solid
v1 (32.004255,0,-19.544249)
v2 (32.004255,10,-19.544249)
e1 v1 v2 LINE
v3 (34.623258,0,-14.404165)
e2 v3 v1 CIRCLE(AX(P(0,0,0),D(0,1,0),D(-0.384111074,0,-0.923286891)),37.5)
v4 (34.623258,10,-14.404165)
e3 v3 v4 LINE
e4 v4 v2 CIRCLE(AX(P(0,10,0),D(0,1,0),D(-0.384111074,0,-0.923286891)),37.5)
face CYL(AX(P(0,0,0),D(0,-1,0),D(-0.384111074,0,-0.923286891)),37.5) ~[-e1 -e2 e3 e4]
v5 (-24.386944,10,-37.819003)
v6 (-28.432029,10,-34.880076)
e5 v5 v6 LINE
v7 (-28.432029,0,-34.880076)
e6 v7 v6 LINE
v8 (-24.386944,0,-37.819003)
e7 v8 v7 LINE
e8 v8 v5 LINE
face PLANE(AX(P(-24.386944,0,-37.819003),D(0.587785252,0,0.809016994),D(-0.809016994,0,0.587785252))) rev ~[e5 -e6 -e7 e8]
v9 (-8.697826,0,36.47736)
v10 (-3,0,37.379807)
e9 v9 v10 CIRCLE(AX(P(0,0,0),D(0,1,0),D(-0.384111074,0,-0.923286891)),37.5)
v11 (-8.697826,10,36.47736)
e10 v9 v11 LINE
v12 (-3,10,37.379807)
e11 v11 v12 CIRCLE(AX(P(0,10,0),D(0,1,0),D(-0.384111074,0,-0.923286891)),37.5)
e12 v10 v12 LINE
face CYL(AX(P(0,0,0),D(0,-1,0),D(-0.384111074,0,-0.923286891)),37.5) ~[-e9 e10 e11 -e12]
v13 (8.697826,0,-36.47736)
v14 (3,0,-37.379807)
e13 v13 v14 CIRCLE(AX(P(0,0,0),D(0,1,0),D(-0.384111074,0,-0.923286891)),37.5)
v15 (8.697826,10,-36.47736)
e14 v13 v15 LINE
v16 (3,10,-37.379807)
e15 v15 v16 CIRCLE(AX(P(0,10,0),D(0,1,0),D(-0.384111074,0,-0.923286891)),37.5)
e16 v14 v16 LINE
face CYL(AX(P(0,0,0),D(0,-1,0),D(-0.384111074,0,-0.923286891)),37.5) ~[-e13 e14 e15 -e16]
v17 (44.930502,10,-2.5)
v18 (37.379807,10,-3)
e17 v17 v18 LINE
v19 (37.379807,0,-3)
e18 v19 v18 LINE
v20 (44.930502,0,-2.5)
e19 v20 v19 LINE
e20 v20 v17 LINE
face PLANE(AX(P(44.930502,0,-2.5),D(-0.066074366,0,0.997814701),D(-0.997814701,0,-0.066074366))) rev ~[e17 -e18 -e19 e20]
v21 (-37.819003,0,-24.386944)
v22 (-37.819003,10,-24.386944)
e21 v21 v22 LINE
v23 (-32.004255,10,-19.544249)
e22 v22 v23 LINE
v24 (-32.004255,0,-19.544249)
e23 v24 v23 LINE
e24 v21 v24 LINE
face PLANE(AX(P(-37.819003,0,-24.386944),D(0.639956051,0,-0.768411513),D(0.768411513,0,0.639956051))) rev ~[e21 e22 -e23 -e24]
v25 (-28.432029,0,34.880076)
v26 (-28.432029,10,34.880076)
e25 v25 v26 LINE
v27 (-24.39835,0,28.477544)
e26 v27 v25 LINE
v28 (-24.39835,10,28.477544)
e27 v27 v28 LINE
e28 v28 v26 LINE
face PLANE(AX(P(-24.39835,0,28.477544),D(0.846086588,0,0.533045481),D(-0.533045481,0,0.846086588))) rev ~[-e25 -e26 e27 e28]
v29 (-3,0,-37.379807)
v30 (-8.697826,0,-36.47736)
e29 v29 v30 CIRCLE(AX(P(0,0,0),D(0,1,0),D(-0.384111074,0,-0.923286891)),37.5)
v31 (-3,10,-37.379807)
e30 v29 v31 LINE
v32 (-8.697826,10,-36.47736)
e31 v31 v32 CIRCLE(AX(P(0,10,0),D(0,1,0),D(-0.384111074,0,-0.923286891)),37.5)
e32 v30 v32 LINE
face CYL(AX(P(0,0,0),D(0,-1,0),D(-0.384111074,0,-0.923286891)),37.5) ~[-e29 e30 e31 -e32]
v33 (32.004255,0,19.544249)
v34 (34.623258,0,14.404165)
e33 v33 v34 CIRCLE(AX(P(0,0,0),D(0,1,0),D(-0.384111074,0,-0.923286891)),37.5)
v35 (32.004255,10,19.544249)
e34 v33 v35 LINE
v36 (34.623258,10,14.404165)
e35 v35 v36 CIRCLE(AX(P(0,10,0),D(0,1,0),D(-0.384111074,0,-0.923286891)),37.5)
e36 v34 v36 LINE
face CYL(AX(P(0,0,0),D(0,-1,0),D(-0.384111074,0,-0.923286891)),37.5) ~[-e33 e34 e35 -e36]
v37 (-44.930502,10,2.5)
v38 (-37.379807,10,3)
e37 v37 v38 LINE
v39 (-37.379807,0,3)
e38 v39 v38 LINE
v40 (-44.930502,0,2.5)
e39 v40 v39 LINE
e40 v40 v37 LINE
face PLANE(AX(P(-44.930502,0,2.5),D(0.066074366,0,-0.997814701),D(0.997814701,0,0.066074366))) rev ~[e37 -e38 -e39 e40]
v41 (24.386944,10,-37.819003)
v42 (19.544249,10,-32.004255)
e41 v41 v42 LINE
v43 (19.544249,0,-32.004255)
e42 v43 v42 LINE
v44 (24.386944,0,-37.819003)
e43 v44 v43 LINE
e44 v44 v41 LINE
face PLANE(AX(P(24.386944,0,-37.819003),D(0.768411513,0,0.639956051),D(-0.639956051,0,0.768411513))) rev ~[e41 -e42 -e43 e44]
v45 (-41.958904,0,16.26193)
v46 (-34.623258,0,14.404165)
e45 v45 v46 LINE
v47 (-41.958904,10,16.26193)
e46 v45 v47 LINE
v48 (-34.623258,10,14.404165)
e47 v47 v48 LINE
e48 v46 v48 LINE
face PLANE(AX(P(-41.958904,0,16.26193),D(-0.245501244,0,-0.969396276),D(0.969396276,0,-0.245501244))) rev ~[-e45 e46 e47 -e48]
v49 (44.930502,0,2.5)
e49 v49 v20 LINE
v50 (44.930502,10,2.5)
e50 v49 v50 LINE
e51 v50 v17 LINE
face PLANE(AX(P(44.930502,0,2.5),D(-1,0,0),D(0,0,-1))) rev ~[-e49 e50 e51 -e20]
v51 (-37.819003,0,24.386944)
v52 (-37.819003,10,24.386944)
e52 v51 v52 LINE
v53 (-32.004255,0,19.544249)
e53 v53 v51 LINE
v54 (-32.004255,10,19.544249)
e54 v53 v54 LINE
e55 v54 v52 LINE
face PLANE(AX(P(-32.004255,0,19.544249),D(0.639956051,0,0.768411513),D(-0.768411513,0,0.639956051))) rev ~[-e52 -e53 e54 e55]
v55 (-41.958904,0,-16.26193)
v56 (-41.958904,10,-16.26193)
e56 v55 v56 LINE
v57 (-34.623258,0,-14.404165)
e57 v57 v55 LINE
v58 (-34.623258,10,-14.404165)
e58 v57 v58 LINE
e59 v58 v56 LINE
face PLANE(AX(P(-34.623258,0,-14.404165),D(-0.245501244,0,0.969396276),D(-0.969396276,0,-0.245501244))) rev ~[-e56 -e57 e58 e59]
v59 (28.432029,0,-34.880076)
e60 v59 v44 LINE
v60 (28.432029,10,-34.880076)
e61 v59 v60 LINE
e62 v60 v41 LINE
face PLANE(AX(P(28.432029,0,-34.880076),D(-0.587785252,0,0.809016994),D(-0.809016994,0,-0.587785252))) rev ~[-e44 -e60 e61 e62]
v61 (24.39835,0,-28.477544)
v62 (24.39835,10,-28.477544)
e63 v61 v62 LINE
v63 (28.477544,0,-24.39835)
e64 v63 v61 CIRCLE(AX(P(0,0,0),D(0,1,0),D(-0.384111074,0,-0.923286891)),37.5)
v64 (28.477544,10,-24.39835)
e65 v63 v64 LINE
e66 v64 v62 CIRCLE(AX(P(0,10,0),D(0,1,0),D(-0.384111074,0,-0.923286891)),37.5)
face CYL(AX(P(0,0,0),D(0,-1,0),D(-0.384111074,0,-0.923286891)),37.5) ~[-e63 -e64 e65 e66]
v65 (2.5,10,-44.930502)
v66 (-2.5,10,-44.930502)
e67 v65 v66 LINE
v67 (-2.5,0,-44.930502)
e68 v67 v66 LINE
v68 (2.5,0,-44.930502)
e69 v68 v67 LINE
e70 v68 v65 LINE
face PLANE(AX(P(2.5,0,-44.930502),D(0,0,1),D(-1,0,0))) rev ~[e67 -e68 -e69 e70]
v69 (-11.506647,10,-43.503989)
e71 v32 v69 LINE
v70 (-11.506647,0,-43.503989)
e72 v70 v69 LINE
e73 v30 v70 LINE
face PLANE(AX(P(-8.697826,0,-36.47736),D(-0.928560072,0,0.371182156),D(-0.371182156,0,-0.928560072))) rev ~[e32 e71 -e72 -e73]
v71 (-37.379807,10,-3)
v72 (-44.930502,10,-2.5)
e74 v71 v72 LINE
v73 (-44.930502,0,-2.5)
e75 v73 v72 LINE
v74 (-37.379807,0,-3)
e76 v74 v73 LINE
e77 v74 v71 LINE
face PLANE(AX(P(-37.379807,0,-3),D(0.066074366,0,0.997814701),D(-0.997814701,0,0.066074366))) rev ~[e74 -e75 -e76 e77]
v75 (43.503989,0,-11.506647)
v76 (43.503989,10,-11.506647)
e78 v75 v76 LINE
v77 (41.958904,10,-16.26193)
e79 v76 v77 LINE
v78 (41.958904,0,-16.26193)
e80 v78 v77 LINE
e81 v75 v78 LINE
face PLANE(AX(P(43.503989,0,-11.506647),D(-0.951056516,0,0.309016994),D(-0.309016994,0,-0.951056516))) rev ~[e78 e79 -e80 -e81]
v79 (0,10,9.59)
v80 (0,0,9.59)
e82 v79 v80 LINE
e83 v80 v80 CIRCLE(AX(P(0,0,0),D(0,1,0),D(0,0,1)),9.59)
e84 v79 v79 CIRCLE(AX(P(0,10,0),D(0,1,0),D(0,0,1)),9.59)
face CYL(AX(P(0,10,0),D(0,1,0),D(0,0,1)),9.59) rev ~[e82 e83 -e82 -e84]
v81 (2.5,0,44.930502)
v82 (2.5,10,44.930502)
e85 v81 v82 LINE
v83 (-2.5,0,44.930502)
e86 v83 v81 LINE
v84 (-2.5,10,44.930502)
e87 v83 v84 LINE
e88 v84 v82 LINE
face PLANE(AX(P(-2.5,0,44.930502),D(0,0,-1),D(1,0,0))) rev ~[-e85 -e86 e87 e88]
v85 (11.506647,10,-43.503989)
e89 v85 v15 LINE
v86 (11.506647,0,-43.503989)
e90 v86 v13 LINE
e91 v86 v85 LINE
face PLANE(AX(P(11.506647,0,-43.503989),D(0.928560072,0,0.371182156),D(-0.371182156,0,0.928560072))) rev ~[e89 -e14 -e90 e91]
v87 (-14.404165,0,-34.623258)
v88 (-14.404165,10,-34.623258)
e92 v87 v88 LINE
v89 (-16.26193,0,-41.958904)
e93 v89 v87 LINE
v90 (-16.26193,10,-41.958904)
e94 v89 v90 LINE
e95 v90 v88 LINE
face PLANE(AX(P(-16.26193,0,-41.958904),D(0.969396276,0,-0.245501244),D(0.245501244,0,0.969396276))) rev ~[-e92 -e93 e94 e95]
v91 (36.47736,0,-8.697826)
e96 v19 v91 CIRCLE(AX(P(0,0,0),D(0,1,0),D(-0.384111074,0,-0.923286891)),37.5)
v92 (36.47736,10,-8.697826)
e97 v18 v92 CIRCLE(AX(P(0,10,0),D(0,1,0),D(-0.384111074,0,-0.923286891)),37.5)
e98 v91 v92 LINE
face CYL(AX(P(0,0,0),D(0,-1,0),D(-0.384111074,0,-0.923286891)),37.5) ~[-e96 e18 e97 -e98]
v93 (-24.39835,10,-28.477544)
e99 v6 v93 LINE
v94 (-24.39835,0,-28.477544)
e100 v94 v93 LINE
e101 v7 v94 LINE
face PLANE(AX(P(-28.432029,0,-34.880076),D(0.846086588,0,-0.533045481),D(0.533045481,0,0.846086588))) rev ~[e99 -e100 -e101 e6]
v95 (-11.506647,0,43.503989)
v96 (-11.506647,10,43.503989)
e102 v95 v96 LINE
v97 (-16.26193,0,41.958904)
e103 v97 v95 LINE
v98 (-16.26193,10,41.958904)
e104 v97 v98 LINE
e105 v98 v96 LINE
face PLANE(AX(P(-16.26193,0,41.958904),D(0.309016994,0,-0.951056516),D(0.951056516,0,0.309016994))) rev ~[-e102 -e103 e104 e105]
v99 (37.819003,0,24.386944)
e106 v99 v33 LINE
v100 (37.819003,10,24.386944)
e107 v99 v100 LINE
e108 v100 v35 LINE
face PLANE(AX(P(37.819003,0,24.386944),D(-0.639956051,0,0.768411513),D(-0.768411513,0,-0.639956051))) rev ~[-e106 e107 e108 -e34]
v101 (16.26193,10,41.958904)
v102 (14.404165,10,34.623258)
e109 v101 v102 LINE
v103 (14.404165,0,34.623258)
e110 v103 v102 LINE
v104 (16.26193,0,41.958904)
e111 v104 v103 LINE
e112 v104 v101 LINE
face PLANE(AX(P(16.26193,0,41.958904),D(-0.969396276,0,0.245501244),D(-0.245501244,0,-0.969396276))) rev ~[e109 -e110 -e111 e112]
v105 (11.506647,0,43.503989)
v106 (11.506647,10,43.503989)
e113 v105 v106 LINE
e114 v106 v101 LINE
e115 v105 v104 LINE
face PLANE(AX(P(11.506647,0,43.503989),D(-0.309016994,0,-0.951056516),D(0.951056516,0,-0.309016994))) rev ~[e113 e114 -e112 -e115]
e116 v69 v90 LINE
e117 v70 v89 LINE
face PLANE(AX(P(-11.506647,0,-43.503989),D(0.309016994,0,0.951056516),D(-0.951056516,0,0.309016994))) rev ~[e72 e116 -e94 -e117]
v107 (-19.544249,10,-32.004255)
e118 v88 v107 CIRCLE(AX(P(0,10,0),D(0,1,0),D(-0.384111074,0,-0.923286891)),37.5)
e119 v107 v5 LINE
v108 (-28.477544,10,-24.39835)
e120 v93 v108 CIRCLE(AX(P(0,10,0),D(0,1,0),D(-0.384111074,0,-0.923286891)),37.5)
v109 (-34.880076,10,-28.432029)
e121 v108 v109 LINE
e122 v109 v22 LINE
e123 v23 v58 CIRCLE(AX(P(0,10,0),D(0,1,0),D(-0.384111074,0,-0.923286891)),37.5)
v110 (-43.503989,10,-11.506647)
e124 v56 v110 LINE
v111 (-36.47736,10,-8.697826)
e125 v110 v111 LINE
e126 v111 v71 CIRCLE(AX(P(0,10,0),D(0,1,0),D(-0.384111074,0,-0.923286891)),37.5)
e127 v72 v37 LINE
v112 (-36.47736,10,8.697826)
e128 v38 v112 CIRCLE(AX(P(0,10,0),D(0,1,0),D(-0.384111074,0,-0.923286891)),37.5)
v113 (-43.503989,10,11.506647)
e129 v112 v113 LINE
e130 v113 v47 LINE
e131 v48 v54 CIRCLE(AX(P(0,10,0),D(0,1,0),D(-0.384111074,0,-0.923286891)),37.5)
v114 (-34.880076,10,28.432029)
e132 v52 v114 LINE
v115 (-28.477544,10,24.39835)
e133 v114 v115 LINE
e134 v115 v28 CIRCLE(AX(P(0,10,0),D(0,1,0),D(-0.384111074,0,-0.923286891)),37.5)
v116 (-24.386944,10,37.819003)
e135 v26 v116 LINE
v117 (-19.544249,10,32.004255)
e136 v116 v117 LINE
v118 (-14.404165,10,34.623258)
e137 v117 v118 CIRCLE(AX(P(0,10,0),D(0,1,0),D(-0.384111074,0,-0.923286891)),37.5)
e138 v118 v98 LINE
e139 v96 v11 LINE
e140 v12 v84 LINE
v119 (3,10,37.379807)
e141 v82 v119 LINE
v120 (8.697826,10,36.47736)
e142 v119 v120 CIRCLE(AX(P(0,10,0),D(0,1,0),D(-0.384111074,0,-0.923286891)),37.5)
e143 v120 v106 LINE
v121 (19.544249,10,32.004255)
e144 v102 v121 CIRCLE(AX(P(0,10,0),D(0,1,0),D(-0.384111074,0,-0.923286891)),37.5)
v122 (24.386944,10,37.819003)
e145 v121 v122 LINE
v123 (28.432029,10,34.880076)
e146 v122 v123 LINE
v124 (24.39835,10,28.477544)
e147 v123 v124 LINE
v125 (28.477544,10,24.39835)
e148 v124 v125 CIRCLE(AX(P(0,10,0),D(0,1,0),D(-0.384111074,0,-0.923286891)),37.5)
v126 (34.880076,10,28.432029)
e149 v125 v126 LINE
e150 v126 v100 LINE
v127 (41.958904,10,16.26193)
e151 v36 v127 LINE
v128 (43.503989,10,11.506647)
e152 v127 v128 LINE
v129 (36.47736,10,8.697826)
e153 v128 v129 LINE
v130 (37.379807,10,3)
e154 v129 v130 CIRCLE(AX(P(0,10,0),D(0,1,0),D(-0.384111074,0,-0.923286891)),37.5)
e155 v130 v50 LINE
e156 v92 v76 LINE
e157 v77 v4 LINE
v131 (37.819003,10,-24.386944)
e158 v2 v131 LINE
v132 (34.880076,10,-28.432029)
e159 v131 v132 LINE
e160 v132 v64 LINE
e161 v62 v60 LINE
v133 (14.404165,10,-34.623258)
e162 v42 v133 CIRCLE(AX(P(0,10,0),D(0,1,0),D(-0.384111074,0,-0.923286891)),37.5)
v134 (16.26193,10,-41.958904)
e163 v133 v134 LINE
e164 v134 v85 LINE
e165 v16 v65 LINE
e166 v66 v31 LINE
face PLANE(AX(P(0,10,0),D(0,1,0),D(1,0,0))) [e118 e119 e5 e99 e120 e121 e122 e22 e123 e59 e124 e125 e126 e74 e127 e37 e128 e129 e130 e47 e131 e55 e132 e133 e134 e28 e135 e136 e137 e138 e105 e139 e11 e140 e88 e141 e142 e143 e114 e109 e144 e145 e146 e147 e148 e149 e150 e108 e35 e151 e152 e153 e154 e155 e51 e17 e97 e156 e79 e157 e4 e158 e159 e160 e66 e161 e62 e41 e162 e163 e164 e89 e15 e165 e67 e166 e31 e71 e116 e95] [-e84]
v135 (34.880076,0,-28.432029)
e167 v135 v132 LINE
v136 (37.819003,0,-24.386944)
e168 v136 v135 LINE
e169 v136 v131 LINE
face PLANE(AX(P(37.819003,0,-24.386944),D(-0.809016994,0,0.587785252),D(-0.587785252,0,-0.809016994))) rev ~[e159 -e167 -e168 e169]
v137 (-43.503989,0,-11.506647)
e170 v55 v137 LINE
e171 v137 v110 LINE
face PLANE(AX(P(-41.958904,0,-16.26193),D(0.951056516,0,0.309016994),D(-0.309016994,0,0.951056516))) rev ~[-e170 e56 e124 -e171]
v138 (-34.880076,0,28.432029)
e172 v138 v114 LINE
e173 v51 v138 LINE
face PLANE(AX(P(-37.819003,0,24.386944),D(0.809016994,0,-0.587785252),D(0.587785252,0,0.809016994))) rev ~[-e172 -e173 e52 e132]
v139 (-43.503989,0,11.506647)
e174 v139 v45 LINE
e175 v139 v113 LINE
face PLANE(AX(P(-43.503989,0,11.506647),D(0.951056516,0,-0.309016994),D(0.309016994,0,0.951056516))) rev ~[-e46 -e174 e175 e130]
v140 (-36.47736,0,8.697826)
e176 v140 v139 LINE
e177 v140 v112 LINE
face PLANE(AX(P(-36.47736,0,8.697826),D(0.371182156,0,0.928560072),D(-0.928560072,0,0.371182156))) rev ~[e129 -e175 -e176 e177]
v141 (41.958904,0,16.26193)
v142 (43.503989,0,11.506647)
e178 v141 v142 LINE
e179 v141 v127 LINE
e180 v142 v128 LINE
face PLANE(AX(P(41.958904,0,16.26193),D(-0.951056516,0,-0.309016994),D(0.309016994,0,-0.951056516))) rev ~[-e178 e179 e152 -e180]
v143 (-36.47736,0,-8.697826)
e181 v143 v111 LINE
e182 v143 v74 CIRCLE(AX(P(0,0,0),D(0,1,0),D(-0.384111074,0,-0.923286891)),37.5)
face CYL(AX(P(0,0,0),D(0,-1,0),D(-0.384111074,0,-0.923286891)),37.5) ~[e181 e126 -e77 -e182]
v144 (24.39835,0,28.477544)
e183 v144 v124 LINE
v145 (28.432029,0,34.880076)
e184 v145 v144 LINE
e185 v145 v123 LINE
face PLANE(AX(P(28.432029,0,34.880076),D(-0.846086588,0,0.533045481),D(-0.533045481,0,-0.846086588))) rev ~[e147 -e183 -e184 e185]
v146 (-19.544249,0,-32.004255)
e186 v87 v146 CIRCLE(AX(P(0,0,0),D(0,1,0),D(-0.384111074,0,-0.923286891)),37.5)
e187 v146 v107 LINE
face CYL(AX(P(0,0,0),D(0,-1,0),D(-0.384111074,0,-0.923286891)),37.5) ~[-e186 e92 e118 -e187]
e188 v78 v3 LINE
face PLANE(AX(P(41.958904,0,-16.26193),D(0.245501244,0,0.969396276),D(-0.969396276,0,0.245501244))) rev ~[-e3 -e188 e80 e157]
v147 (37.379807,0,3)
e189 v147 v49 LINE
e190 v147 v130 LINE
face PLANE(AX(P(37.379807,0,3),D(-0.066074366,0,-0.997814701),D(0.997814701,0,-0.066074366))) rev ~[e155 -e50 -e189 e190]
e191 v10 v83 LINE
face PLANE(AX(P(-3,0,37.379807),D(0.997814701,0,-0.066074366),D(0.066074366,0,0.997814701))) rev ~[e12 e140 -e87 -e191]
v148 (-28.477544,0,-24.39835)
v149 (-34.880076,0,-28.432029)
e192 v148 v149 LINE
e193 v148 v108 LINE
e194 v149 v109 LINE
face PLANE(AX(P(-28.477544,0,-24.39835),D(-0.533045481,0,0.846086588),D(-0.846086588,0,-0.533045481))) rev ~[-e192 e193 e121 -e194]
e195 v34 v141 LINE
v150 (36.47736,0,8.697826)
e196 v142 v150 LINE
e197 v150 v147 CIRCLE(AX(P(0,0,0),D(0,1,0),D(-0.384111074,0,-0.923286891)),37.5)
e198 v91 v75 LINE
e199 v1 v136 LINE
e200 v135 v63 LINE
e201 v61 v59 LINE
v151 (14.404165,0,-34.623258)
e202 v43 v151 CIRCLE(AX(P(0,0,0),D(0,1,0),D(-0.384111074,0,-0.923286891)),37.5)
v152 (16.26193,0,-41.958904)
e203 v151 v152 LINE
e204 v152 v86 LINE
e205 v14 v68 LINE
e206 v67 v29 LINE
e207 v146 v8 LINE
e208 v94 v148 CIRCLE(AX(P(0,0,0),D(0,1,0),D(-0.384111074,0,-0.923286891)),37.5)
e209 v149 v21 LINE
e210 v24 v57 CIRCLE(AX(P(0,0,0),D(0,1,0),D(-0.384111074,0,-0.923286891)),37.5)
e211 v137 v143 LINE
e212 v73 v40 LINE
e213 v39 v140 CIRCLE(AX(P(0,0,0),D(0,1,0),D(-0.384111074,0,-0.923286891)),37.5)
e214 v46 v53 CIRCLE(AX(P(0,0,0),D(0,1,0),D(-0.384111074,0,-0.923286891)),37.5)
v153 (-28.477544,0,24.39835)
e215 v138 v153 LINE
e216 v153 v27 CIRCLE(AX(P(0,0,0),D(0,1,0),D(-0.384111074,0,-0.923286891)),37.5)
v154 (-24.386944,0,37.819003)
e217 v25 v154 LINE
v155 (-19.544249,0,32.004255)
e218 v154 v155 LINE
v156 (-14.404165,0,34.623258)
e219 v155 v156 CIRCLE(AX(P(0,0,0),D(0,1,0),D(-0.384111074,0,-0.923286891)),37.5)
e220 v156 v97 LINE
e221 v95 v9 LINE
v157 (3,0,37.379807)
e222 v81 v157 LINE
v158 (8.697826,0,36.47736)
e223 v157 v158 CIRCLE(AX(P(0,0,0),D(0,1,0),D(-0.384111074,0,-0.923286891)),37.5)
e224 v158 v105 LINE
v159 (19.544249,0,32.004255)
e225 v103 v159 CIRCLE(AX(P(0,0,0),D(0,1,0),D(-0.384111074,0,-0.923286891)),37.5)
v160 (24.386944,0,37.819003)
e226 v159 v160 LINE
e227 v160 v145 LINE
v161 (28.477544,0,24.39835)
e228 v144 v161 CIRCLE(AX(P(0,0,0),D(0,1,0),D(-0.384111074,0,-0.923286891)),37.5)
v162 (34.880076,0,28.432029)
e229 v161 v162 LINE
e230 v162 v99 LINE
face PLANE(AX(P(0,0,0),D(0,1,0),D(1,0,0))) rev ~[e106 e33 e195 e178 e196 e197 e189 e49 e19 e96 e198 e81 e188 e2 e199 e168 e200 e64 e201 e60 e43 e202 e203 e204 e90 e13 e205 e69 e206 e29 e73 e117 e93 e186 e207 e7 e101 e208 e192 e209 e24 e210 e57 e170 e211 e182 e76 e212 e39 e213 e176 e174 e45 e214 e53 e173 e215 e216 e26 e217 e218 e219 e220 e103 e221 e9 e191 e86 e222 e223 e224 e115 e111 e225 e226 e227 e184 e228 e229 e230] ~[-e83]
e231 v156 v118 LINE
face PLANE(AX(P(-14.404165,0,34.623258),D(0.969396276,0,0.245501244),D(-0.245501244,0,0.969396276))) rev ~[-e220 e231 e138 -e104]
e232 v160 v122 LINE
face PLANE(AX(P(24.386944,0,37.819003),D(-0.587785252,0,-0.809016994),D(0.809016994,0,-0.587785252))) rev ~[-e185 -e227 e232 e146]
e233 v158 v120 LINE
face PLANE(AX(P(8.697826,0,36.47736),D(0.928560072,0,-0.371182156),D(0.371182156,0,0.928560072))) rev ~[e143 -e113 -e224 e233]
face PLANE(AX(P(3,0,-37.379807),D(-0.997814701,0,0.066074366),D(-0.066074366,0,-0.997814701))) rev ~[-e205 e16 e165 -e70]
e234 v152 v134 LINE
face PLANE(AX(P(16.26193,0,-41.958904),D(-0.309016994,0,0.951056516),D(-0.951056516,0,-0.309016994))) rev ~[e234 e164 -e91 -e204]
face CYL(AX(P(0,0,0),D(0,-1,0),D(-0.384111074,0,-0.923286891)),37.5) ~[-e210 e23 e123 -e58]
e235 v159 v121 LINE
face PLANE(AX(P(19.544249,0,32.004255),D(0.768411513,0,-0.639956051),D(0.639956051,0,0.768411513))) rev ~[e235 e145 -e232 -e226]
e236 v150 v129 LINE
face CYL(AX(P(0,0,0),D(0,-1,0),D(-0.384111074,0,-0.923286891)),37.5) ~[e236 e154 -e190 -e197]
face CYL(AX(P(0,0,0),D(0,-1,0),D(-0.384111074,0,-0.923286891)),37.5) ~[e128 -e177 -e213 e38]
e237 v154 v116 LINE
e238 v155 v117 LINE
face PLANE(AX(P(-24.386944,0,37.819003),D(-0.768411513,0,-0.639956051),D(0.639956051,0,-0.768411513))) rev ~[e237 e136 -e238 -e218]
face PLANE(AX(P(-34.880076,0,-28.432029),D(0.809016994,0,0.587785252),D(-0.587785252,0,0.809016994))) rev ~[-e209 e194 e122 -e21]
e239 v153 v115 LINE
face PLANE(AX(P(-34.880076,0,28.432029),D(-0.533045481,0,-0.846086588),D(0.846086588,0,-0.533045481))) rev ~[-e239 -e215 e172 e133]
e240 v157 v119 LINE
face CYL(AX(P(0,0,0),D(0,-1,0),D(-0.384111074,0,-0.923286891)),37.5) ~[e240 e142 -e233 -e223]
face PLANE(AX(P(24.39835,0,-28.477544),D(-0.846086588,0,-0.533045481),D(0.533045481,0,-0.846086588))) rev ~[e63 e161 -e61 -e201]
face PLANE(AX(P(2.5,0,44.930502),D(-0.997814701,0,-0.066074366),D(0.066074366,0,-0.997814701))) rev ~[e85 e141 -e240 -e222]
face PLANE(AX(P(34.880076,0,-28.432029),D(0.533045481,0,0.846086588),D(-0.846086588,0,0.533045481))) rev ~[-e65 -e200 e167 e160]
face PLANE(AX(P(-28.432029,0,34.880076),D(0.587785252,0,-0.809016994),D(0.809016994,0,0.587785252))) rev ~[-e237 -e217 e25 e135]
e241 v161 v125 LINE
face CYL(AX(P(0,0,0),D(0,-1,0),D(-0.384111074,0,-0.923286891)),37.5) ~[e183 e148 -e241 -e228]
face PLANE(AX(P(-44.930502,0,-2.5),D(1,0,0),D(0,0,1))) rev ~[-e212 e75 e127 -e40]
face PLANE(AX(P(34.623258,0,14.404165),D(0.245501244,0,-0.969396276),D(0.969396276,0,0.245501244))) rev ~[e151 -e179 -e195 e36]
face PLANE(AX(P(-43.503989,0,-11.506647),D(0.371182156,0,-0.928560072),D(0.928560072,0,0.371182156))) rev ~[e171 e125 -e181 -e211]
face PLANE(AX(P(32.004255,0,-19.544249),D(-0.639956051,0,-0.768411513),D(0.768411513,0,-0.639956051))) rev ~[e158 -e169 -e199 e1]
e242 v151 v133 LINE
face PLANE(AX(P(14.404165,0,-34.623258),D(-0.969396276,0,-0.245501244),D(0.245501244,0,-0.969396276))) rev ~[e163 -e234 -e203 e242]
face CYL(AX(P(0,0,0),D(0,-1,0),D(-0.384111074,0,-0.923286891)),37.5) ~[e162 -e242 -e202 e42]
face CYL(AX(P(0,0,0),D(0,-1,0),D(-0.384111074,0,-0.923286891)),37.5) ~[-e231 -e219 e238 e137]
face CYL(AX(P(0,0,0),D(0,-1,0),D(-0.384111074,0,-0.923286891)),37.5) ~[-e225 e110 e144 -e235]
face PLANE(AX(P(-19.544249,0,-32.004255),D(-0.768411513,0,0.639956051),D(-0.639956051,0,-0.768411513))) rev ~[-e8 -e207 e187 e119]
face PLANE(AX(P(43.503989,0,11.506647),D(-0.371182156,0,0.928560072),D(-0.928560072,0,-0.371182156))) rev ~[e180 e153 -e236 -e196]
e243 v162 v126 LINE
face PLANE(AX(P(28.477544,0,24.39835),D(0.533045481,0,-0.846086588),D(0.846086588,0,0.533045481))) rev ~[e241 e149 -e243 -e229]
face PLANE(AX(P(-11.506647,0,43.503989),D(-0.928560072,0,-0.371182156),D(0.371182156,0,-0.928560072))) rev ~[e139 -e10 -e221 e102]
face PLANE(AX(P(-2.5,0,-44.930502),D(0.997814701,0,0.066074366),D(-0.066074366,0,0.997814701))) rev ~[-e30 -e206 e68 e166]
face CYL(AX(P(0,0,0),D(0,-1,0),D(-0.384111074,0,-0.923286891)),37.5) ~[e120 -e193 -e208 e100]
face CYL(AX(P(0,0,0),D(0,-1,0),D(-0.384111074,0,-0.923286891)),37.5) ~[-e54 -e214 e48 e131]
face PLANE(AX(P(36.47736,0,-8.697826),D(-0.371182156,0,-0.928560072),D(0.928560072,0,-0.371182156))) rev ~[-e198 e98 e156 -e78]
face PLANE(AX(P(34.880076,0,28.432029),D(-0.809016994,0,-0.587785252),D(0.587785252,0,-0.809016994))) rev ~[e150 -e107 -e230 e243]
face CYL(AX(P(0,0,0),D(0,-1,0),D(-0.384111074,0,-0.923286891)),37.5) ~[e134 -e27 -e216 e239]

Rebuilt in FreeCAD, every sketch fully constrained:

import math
import FreeCAD as App
import Part
import Sketcher

V = App.Vector
Q = App.Units.Quantity

doc = App.newDocument("Part")
body = doc.addObject("PartDesign::Body", "Body")

sketch1 = body.newObject("Sketcher::SketchObject", "Sketch")
sketch1.AttachmentSupport = (doc.getObject("XZ_Plane"), [""])
sketch1.MapMode = "FlatFace"
sketch1.addGeometry(Part.LineSegment(V(-8.7, -36.5, 0), V(-11.5, -43.5, 0)), False)
sketch1.addGeometry(Part.LineSegment(V(-11.5, -43.5, 0), V(-16.3, -42, 0)), False)
sketch1.addGeometry(Part.LineSegment(V(-16.3, -42, 0), V(-14.4, -34.6, 0)), False)
sketch1.addGeometry(Part.ArcOfCircle(Part.Circle(V(0, 0, 0), V(0, 0, 1), 37.5), math.radians(-121.41), math.radians(-112.59)), False)
sketch1.addGeometry(Part.LineSegment(V(-19.5, -32, 0), V(-24.4, -37.8, 0)), False)
sketch1.addGeometry(Part.LineSegment(V(-24.4, -37.8, 0), V(-28.4, -34.9, 0)), False)
sketch1.addGeometry(Part.LineSegment(V(-28.4, -34.9, 0), V(-24.4, -28.5, 0)), False)
sketch1.addGeometry(Part.ArcOfCircle(Part.Circle(V(0, 0, 0), V(0, 0, 1), 37.5), math.radians(-139.41), math.radians(-130.59)), False)
sketch1.addGeometry(Part.LineSegment(V(-28.5, -24.4, 0), V(-34.9, -28.4, 0)), False)
sketch1.addGeometry(Part.LineSegment(V(-34.9, -28.4, 0), V(-37.8, -24.4, 0)), False)
sketch1.addGeometry(Part.LineSegment(V(-37.8, -24.4, 0), V(-32, -19.5, 0)), False)
sketch1.addGeometry(Part.ArcOfCircle(Part.Circle(V(0, 0, 0), V(0, 0, 1), 37.5), math.radians(-157.41), math.radians(-148.59)), False)
sketch1.addGeometry(Part.LineSegment(V(-34.6, -14.4, 0), V(-42, -16.3, 0)), False)
sketch1.addGeometry(Part.LineSegment(V(-42, -16.3, 0), V(-43.5, -11.5, 0)), False)
sketch1.addGeometry(Part.LineSegment(V(-43.5, -11.5, 0), V(-36.5, -8.7, 0)), False)
sketch1.addGeometry(Part.ArcOfCircle(Part.Circle(V(0, 0, 0), V(0, 0, 1), 37.5), math.radians(-175.41), math.radians(-166.59)), False)
sketch1.addGeometry(Part.LineSegment(V(-37.4, -3, 0), V(-44.9, -2.5, 0)), False)
sketch1.addGeometry(Part.LineSegment(V(-44.9, -2.5, 0), V(-44.9, 2.5, 0)), False)
sketch1.addGeometry(Part.LineSegment(V(-44.9, 2.5, 0), V(-37.4, 3, 0)), False)
sketch1.addGeometry(Part.ArcOfCircle(Part.Circle(V(0, 0, 0), V(0, 0, 1), 37.5), math.radians(166.59), math.radians(175.41)), False)
sketch1.addGeometry(Part.LineSegment(V(-36.5, 8.7, 0), V(-43.5, 11.5, 0)), False)
sketch1.addGeometry(Part.LineSegment(V(-43.5, 11.5, 0), V(-42, 16.3, 0)), False)
sketch1.addGeometry(Part.LineSegment(V(-42, 16.3, 0), V(-34.6, 14.4, 0)), False)
sketch1.addGeometry(Part.ArcOfCircle(Part.Circle(V(0, 0, 0), V(0, 0, 1), 37.5), math.radians(148.59), math.radians(157.41)), False)
sketch1.addGeometry(Part.LineSegment(V(-32, 19.5, 0), V(-37.8, 24.4, 0)), False)
sketch1.addGeometry(Part.LineSegment(V(-37.8, 24.4, 0), V(-34.9, 28.4, 0)), False)
sketch1.addGeometry(Part.LineSegment(V(-34.9, 28.4, 0), V(-28.5, 24.4, 0)), False)
sketch1.addGeometry(Part.ArcOfCircle(Part.Circle(V(0, 0, 0), V(0, 0, 1), 37.5), math.radians(130.59), math.radians(139.41)), False)
sketch1.addGeometry(Part.LineSegment(V(-24.4, 28.5, 0), V(-28.4, 34.9, 0)), False)
sketch1.addGeometry(Part.LineSegment(V(-28.4, 34.9, 0), V(-24.4, 37.8, 0)), False)
sketch1.addGeometry(Part.LineSegment(V(-24.4, 37.8, 0), V(-19.5, 32, 0)), False)
sketch1.addGeometry(Part.ArcOfCircle(Part.Circle(V(0, 0, 0), V(0, 0, 1), 37.5), math.radians(112.59), math.radians(121.41)), False)
sketch1.addGeometry(Part.LineSegment(V(-14.4, 34.6, 0), V(-16.3, 42, 0)), False)
sketch1.addGeometry(Part.LineSegment(V(-16.3, 42, 0), V(-11.5, 43.5, 0)), False)
sketch1.addGeometry(Part.LineSegment(V(-11.5, 43.5, 0), V(-8.7, 36.5, 0)), False)
sketch1.addGeometry(Part.ArcOfCircle(Part.Circle(V(0, 0, 0), V(0, 0, 1), 37.5), math.radians(94.59), math.radians(103.41)), False)
sketch1.addGeometry(Part.LineSegment(V(-3, 37.4, 0), V(-2.5, 44.9, 0)), False)
sketch1.addGeometry(Part.LineSegment(V(-2.5, 44.9, 0), V(2.5, 44.9, 0)), False)
sketch1.addGeometry(Part.LineSegment(V(2.5, 44.9, 0), V(3, 37.4, 0)), False)
sketch1.addGeometry(Part.ArcOfCircle(Part.Circle(V(0, 0, 0), V(0, 0, 1), 37.5), math.radians(76.59), math.radians(85.41)), False)
sketch1.addGeometry(Part.LineSegment(V(8.7, 36.5, 0), V(11.5, 43.5, 0)), False)
sketch1.addGeometry(Part.LineSegment(V(11.5, 43.5, 0), V(16.3, 42, 0)), False)
sketch1.addGeometry(Part.LineSegment(V(16.3, 42, 0), V(14.4, 34.6, 0)), False)
sketch1.addGeometry(Part.ArcOfCircle(Part.Circle(V(0, 0, 0), V(0, 0, 1), 37.5), math.radians(58.59), math.radians(67.41)), False)
sketch1.addGeometry(Part.LineSegment(V(19.5, 32, 0), V(24.4, 37.8, 0)), False)
sketch1.addGeometry(Part.LineSegment(V(24.4, 37.8, 0), V(28.4, 34.9, 0)), False)
sketch1.addGeometry(Part.LineSegment(V(28.4, 34.9, 0), V(24.4, 28.5, 0)), False)
sketch1.addGeometry(Part.ArcOfCircle(Part.Circle(V(0, 0, 0), V(0, 0, 1), 37.5), math.radians(40.59), math.radians(49.41)), False)
sketch1.addGeometry(Part.LineSegment(V(28.5, 24.4, 0), V(34.9, 28.4, 0)), False)
sketch1.addGeometry(Part.LineSegment(V(34.9, 28.4, 0), V(37.8, 24.4, 0)), False)
sketch1.addGeometry(Part.LineSegment(V(37.8, 24.4, 0), V(32, 19.5, 0)), False)
sketch1.addGeometry(Part.ArcOfCircle(Part.Circle(V(0, 0, 0), V(0, 0, 1), 37.5), math.radians(22.59), math.radians(31.41)), False)
sketch1.addGeometry(Part.LineSegment(V(34.6, 14.4, 0), V(42, 16.3, 0)), False)
sketch1.addGeometry(Part.LineSegment(V(42, 16.3, 0), V(43.5, 11.5, 0)), False)
sketch1.addGeometry(Part.LineSegment(V(43.5, 11.5, 0), V(36.5, 8.7, 0)), False)
sketch1.addGeometry(Part.ArcOfCircle(Part.Circle(V(0, 0, 0), V(0, 0, 1), 37.5), math.radians(4.59), math.radians(13.41)), False)
sketch1.addGeometry(Part.LineSegment(V(37.4, 3, 0), V(44.9, 2.5, 0)), False)
sketch1.addGeometry(Part.LineSegment(V(44.9, 2.5, 0), V(44.9, -2.5, 0)), False)
sketch1.addGeometry(Part.LineSegment(V(44.9, -2.5, 0), V(37.4, -3, 0)), False)
sketch1.addGeometry(Part.ArcOfCircle(Part.Circle(V(0, 0, 0), V(0, 0, 1), 37.5), math.radians(-13.41), math.radians(-4.59)), False)
sketch1.addGeometry(Part.LineSegment(V(36.5, -8.7, 0), V(43.5, -11.5, 0)), False)
sketch1.addGeometry(Part.LineSegment(V(43.5, -11.5, 0), V(42, -16.3, 0)), False)
sketch1.addGeometry(Part.LineSegment(V(42, -16.3, 0), V(34.6, -14.4, 0)), False)
sketch1.addGeometry(Part.ArcOfCircle(Part.Circle(V(0, 0, 0), V(0, 0, 1), 37.5), math.radians(-31.41), math.radians(-22.59)), False)
sketch1.addGeometry(Part.LineSegment(V(32, -19.5, 0), V(37.8, -24.4, 0)), False)
sketch1.addGeometry(Part.LineSegment(V(37.8, -24.4, 0), V(34.9, -28.4, 0)), False)
sketch1.addGeometry(Part.LineSegment(V(34.9, -28.4, 0), V(28.5, -24.4, 0)), False)
sketch1.addGeometry(Part.ArcOfCircle(Part.Circle(V(0, 0, 0), V(0, 0, 1), 37.5), math.radians(-49.41), math.radians(-40.59)), False)
sketch1.addGeometry(Part.LineSegment(V(24.4, -28.5, 0), V(28.4, -34.9, 0)), False)
sketch1.addGeometry(Part.LineSegment(V(28.4, -34.9, 0), V(24.4, -37.8, 0)), False)
sketch1.addGeometry(Part.LineSegment(V(24.4, -37.8, 0), V(19.5, -32, 0)), False)
sketch1.addGeometry(Part.ArcOfCircle(Part.Circle(V(0, 0, 0), V(0, 0, 1), 37.5), math.radians(-67.41), math.radians(-58.59)), False)
sketch1.addGeometry(Part.LineSegment(V(14.4, -34.6, 0), V(16.3, -42, 0)), False)
sketch1.addGeometry(Part.LineSegment(V(16.3, -42, 0), V(11.5, -43.5, 0)), False)
sketch1.addGeometry(Part.LineSegment(V(11.5, -43.5, 0), V(8.7, -36.5, 0)), False)
sketch1.addGeometry(Part.ArcOfCircle(Part.Circle(V(0, 0, 0), V(0, 0, 1), 37.5), math.radians(-85.41), math.radians(-76.59)), False)
sketch1.addGeometry(Part.LineSegment(V(3, -37.4, 0), V(2.5, -44.9, 0)), False)
sketch1.addGeometry(Part.LineSegment(V(2.5, -44.9, 0), V(-2.5, -44.9, 0)), False)
sketch1.addGeometry(Part.LineSegment(V(-2.5, -44.9, 0), V(-3, -37.4, 0)), False)
sketch1.addGeometry(Part.ArcOfCircle(Part.Circle(V(0, 0, 0), V(0, 0, 1), 37.5), math.radians(-103.41), math.radians(-94.59)), False)
sketch1.addConstraint(Sketcher.Constraint("Coincident", 0, 2, 1, 1))
sketch1.addConstraint(Sketcher.Constraint("Coincident", 1, 2, 2, 1))
sketch1.addConstraint(Sketcher.Constraint("Coincident", 2, 2, 3, 2))
sketch1.addConstraint(Sketcher.Constraint("Coincident", 3, 1, 4, 1))
sketch1.addConstraint(Sketcher.Constraint("Coincident", 4, 2, 5, 1))
sketch1.addConstraint(Sketcher.Constraint("Coincident", 5, 2, 6, 1))
sketch1.addConstraint(Sketcher.Constraint("Coincident", 6, 2, 7, 2))
sketch1.addConstraint(Sketcher.Constraint("Coincident", 7, 1, 8, 1))
sketch1.addConstraint(Sketcher.Constraint("Coincident", 8, 2, 9, 1))
sketch1.addConstraint(Sketcher.Constraint("Coincident", 9, 2, 10, 1))
sketch1.addConstraint(Sketcher.Constraint("Coincident", 10, 2, 11, 2))
sketch1.addConstraint(Sketcher.Constraint("Coincident", 11, 1, 12, 1))
sketch1.addConstraint(Sketcher.Constraint("Coincident", 12, 2, 13, 1))
sketch1.addConstraint(Sketcher.Constraint("Coincident", 13, 2, 14, 1))
sketch1.addConstraint(Sketcher.Constraint("Coincident", 14, 2, 15, 2))
sketch1.addConstraint(Sketcher.Constraint("Coincident", 15, 1, 16, 1))
sketch1.addConstraint(Sketcher.Constraint("Coincident", 16, 2, 17, 1))
sketch1.addConstraint(Sketcher.Constraint("Coincident", 17, 2, 18, 1))
sketch1.addConstraint(Sketcher.Constraint("Coincident", 18, 2, 19, 2))
sketch1.addConstraint(Sketcher.Constraint("Coincident", 19, 1, 20, 1))
sketch1.addConstraint(Sketcher.Constraint("Coincident", 20, 2, 21, 1))
sketch1.addConstraint(Sketcher.Constraint("Coincident", 21, 2, 22, 1))
sketch1.addConstraint(Sketcher.Constraint("Coincident", 22, 2, 23, 2))
sketch1.addConstraint(Sketcher.Constraint("Coincident", 23, 1, 24, 1))
sketch1.addConstraint(Sketcher.Constraint("Coincident", 24, 2, 25, 1))
sketch1.addConstraint(Sketcher.Constraint("Coincident", 25, 2, 26, 1))
sketch1.addConstraint(Sketcher.Constraint("Coincident", 26, 2, 27, 2))
sketch1.addConstraint(Sketcher.Constraint("Coincident", 27, 1, 28, 1))
sketch1.addConstraint(Sketcher.Constraint("Coincident", 28, 2, 29, 1))
sketch1.addConstraint(Sketcher.Constraint("Coincident", 29, 2, 30, 1))
sketch1.addConstraint(Sketcher.Constraint("Coincident", 30, 2, 31, 2))
sketch1.addConstraint(Sketcher.Constraint("Coincident", 31, 1, 32, 1))
sketch1.addConstraint(Sketcher.Constraint("Coincident", 32, 2, 33, 1))
sketch1.addConstraint(Sketcher.Constraint("Coincident", 33, 2, 34, 1))
sketch1.addConstraint(Sketcher.Constraint("Coincident", 34, 2, 35, 2))
sketch1.addConstraint(Sketcher.Constraint("Coincident", 35, 1, 36, 1))
sketch1.addConstraint(Sketcher.Constraint("Coincident", 36, 2, 37, 1))
sketch1.addConstraint(Sketcher.Constraint("Coincident", 37, 2, 38, 1))
sketch1.addConstraint(Sketcher.Constraint("Coincident", 38, 2, 39, 2))
sketch1.addConstraint(Sketcher.Constraint("Coincident", 39, 1, 40, 1))
sketch1.addConstraint(Sketcher.Constraint("Coincident", 40, 2, 41, 1))
sketch1.addConstraint(Sketcher.Constraint("Coincident", 41, 2, 42, 1))
sketch1.addConstraint(Sketcher.Constraint("Coincident", 42, 2, 43, 2))
sketch1.addConstraint(Sketcher.Constraint("Coincident", 43, 1, 44, 1))
sketch1.addConstraint(Sketcher.Constraint("Coincident", 44, 2, 45, 1))
sketch1.addConstraint(Sketcher.Constraint("Coincident", 45, 2, 46, 1))
sketch1.addConstraint(Sketcher.Constraint("Coincident", 46, 2, 47, 2))
sketch1.addConstraint(Sketcher.Constraint("Coincident", 47, 1, 48, 1))
sketch1.addConstraint(Sketcher.Constraint("Coincident", 48, 2, 49, 1))
sketch1.addConstraint(Sketcher.Constraint("Coincident", 49, 2, 50, 1))
sketch1.addConstraint(Sketcher.Constraint("Coincident", 50, 2, 51, 2))
sketch1.addConstraint(Sketcher.Constraint("Coincident", 51, 1, 52, 1))
sketch1.addConstraint(Sketcher.Constraint("Coincident", 52, 2, 53, 1))
sketch1.addConstraint(Sketcher.Constraint("Coincident", 53, 2, 54, 1))
sketch1.addConstraint(Sketcher.Constraint("Coincident", 54, 2, 55, 2))
sketch1.addConstraint(Sketcher.Constraint("Coincident", 55, 1, 56, 1))
sketch1.addConstraint(Sketcher.Constraint("Coincident", 56, 2, 57, 1))
sketch1.addConstraint(Sketcher.Constraint("Coincident", 57, 2, 58, 1))
sketch1.addConstraint(Sketcher.Constraint("Coincident", 58, 2, 59, 2))
sketch1.addConstraint(Sketcher.Constraint("Coincident", 59, 1, 60, 1))
sketch1.addConstraint(Sketcher.Constraint("Coincident", 60, 2, 61, 1))
sketch1.addConstraint(Sketcher.Constraint("Coincident", 61, 2, 62, 1))
sketch1.addConstraint(Sketcher.Constraint("Coincident", 62, 2, 63, 2))
sketch1.addConstraint(Sketcher.Constraint("Coincident", 63, 1, 64, 1))
sketch1.addConstraint(Sketcher.Constraint("Coincident", 64, 2, 65, 1))
sketch1.addConstraint(Sketcher.Constraint("Coincident", 65, 2, 66, 1))
sketch1.addConstraint(Sketcher.Constraint("Coincident", 66, 2, 67, 2))
sketch1.addConstraint(Sketcher.Constraint("Coincident", 67, 1, 68, 1))
sketch1.addConstraint(Sketcher.Constraint("Coincident", 68, 2, 69, 1))
sketch1.addConstraint(Sketcher.Constraint("Coincident", 69, 2, 70, 1))
sketch1.addConstraint(Sketcher.Constraint("Coincident", 70, 2, 71, 2))
sketch1.addConstraint(Sketcher.Constraint("Coincident", 71, 1, 72, 1))
sketch1.addConstraint(Sketcher.Constraint("Coincident", 72, 2, 73, 1))
sketch1.addConstraint(Sketcher.Constraint("Coincident", 73, 2, 74, 1))
sketch1.addConstraint(Sketcher.Constraint("Coincident", 74, 2, 75, 2))
sketch1.addConstraint(Sketcher.Constraint("Coincident", 75, 1, 76, 1))
sketch1.addConstraint(Sketcher.Constraint("Coincident", 76, 2, 77, 1))
sketch1.addConstraint(Sketcher.Constraint("Coincident", 77, 2, 78, 1))
sketch1.addConstraint(Sketcher.Constraint("Coincident", 78, 2, 79, 2))
sketch1.addConstraint(Sketcher.Constraint("Coincident", 79, 1, 0, 1))
sketch1.addConstraint(Sketcher.Constraint("Vertical", 17))
sketch1.addConstraint(Sketcher.Constraint("Horizontal", 37))
sketch1.addConstraint(Sketcher.Constraint("Vertical", 57))
sketch1.addConstraint(Sketcher.Constraint("Horizontal", 77))
sketch1.addConstraint(Sketcher.Constraint("Coincident", 3, 3, -1, 1))
sketch1.addConstraint(Sketcher.Constraint("Coincident", 7, 3, -1, 1))
sketch1.addConstraint(Sketcher.Constraint("Coincident", 11, 3, -1, 1))
sketch1.addConstraint(Sketcher.Constraint("Coincident", 15, 3, -1, 1))
sketch1.addConstraint(Sketcher.Constraint("Coincident", 19, 3, -1, 1))
sketch1.addConstraint(Sketcher.Constraint("Coincident", 23, 3, -1, 1))
sketch1.addConstraint(Sketcher.Constraint("Coincident", 27, 3, -1, 1))
sketch1.addConstraint(Sketcher.Constraint("Coincident", 31, 3, -1, 1))
sketch1.addConstraint(Sketcher.Constraint("Coincident", 35, 3, -1, 1))
sketch1.addConstraint(Sketcher.Constraint("Coincident", 39, 3, -1, 1))
sketch1.addConstraint(Sketcher.Constraint("Coincident", 43, 3, -1, 1))
sketch1.addConstraint(Sketcher.Constraint("Coincident", 47, 3, -1, 1))
sketch1.addConstraint(Sketcher.Constraint("Coincident", 51, 3, -1, 1))
sketch1.addConstraint(Sketcher.Constraint("Coincident", 55, 3, -1, 1))
sketch1.addConstraint(Sketcher.Constraint("Coincident", 59, 3, -1, 1))
sketch1.addConstraint(Sketcher.Constraint("Coincident", 63, 3, -1, 1))
sketch1.addConstraint(Sketcher.Constraint("Coincident", 67, 3, -1, 1))
sketch1.addConstraint(Sketcher.Constraint("Coincident", 71, 3, -1, 1))
sketch1.addConstraint(Sketcher.Constraint("Coincident", 75, 3, -1, 1))
sketch1.addConstraint(Sketcher.Constraint("Coincident", 79, 3, -1, 1))
sketch1.addConstraint(Sketcher.Constraint("Equal", 3, 7))
sketch1.addConstraint(Sketcher.Constraint("Equal", 7, 11))
sketch1.addConstraint(Sketcher.Constraint("Equal", 11, 15))
sketch1.addConstraint(Sketcher.Constraint("Equal", 15, 19))
sketch1.addConstraint(Sketcher.Constraint("Equal", 19, 23))
sketch1.addConstraint(Sketcher.Constraint("Equal", 23, 27))
sketch1.addConstraint(Sketcher.Constraint("Equal", 27, 31))
sketch1.addConstraint(Sketcher.Constraint("Equal", 31, 35))
sketch1.addConstraint(Sketcher.Constraint("Equal", 35, 39))
sketch1.addConstraint(Sketcher.Constraint("Equal", 39, 43))
sketch1.addConstraint(Sketcher.Constraint("Equal", 43, 47))
sketch1.addConstraint(Sketcher.Constraint("Equal", 47, 51))
sketch1.addConstraint(Sketcher.Constraint("Equal", 51, 55))
sketch1.addConstraint(Sketcher.Constraint("Equal", 55, 59))
sketch1.addConstraint(Sketcher.Constraint("Equal", 59, 63))
sketch1.addConstraint(Sketcher.Constraint("Equal", 63, 67))
sketch1.addConstraint(Sketcher.Constraint("Equal", 67, 71))
sketch1.addConstraint(Sketcher.Constraint("Equal", 71, 75))
sketch1.addConstraint(Sketcher.Constraint("Equal", 75, 79))
sketch1.addConstraint(Sketcher.Constraint("Symmetric", 0, 2, 40, 2, -1, 1))
sketch1.addConstraint(Sketcher.Constraint("Symmetric", 1, 2, 41, 2, -1, 1))
sketch1.addConstraint(Sketcher.Constraint("Symmetric", 4, 2, 44, 2, -1, 1))
sketch1.addConstraint(Sketcher.Constraint("Symmetric", 5, 2, 45, 2, -1, 1))
sketch1.addConstraint(Sketcher.Constraint("Symmetric", 8, 2, 48, 2, -1, 1))
sketch1.addConstraint(Sketcher.Constraint("Symmetric", 9, 2, 49, 2, -1, 1))
sketch1.addConstraint(Sketcher.Constraint("Symmetric", 12, 2, 52, 2, -1, 1))
sketch1.addConstraint(Sketcher.Constraint("Symmetric", 13, 2, 53, 2, -1, 1))
sketch1.addConstraint(Sketcher.Constraint("Symmetric", 16, 2, 56, 2, -1, 1))
sketch1.addConstraint(Sketcher.Constraint("Symmetric", 20, 2, 60, 2, -1, 1))
sketch1.addConstraint(Sketcher.Constraint("Symmetric", 21, 2, 61, 2, -1, 1))
sketch1.addConstraint(Sketcher.Constraint("Symmetric", 24, 2, 64, 2, -1, 1))
sketch1.addConstraint(Sketcher.Constraint("Symmetric", 25, 2, 65, 2, -1, 1))
sketch1.addConstraint(Sketcher.Constraint("Symmetric", 28, 2, 68, 2, -1, 1))
sketch1.addConstraint(Sketcher.Constraint("Symmetric", 29, 2, 69, 2, -1, 1))
sketch1.addConstraint(Sketcher.Constraint("Symmetric", 32, 2, 72, 2, -1, 1))
sketch1.addConstraint(Sketcher.Constraint("Symmetric", 33, 2, 73, 2, -1, 1))
sketch1.addConstraint(Sketcher.Constraint("Symmetric", 36, 2, 76, 2, -1, 1))
sketch1.addConstraint(Sketcher.Constraint("Symmetric", 33, 2, 40, 2, -2))
sketch1.addConstraint(Sketcher.Constraint("Symmetric", 32, 2, 41, 2, -2))
sketch1.addConstraint(Sketcher.Constraint("Symmetric", 29, 2, 44, 2, -2))
sketch1.addConstraint(Sketcher.Constraint("Symmetric", 28, 2, 45, 2, -2))
sketch1.addConstraint(Sketcher.Constraint("Symmetric", 25, 2, 48, 2, -2))
sketch1.addConstraint(Sketcher.Constraint("Symmetric", 24, 2, 49, 2, -2))
sketch1.addConstraint(Sketcher.Constraint("Symmetric", 21, 2, 52, 2, -2))
sketch1.addConstraint(Sketcher.Constraint("Symmetric", 20, 2, 53, 2, -2))
sketch1.addConstraint(Sketcher.Constraint("Perpendicular", 0, 20))
sketch1.addConstraint(Sketcher.Constraint("Perpendicular", 1, 21))
sketch1.addConstraint(Sketcher.Constraint("Perpendicular", 2, 22))
sketch1.addConstraint(Sketcher.Constraint("Perpendicular", 4, 24))
sketch1.addConstraint(Sketcher.Constraint("Perpendicular", 5, 25))
sketch1.addConstraint(Sketcher.Constraint("Perpendicular", 6, 26))
sketch1.addConstraint(Sketcher.Constraint("Perpendicular", 8, 28))
sketch1.addConstraint(Sketcher.Constraint("Perpendicular", 10, 30))
sketch1.addConstraint(Sketcher.Constraint("Perpendicular", 12, 32))
sketch1.addConstraint(Sketcher.Constraint("Perpendicular", 14, 34))
sketch1.addConstraint(Sketcher.Constraint("Perpendicular", 16, 36))
sketch1.addConstraint(Sketcher.Constraint("Perpendicular", 18, 38))
sketch1.addConstraint(Sketcher.Constraint("Perpendicular", 20, 40))
sketch1.addConstraint(Sketcher.Constraint("Perpendicular", 22, 42))
sketch1.addConstraint(Sketcher.Constraint("Perpendicular", 24, 44))
sketch1.addConstraint(Sketcher.Constraint("Perpendicular", 26, 46))
sketch1.addConstraint(Sketcher.Constraint("Perpendicular", 28, 48))
sketch1.addConstraint(Sketcher.Constraint("Perpendicular", 30, 50))
sketch1.addConstraint(Sketcher.Constraint("Perpendicular", 32, 52))
sketch1.addConstraint(Sketcher.Constraint("Perpendicular", 34, 54))
sketch1.addConstraint(Sketcher.Constraint("Perpendicular", 36, 56))
sketch1.addConstraint(Sketcher.Constraint("Perpendicular", 38, 58))
sketch1.addConstraint(Sketcher.Constraint("Perpendicular", 40, 60))
sketch1.addConstraint(Sketcher.Constraint("Perpendicular", 42, 62))
sketch1.addConstraint(Sketcher.Constraint("Perpendicular", 44, 64))
sketch1.addConstraint(Sketcher.Constraint("Perpendicular", 46, 66))
sketch1.addConstraint(Sketcher.Constraint("Perpendicular", 48, 68))
sketch1.addConstraint(Sketcher.Constraint("Perpendicular", 50, 70))
sketch1.addConstraint(Sketcher.Constraint("Perpendicular", 52, 72))
sketch1.addConstraint(Sketcher.Constraint("Perpendicular", 54, 74))
sketch1.addConstraint(Sketcher.Constraint("Perpendicular", 56, 76))
sketch1.addConstraint(Sketcher.Constraint("Perpendicular", 58, 78))
sketch1.addConstraint(Sketcher.Constraint("Horizontal", 35, 1, 38, 2))
sketch1.addConstraint(Sketcher.Constraint("Horizontal", 34, 2, 39, 1))
sketch1.addConstraint(Sketcher.Constraint("Horizontal", 31, 1, 42, 2))
sketch1.addConstraint(Sketcher.Constraint("Horizontal", 30, 2, 43, 1))
sketch1.addConstraint(Sketcher.Constraint("Horizontal", 27, 1, 46, 2))
sketch1.addConstraint(Sketcher.Constraint("Horizontal", 18, 2, 55, 1))
sketch1.addConstraint(Sketcher.Constraint("Horizontal", 17, 2, 56, 2))
sketch1.addConstraint(Sketcher.Constraint("Horizontal", 16, 2, 57, 2))
sketch1.addConstraint(Sketcher.Constraint("Horizontal", 75, 1, 78, 2))
sketch1.addConstraint(Sketcher.Constraint("Equal", 77, 17))
sketch1.addConstraint(Sketcher.Constraint("Equal", 0, 2))
sketch1.addConstraint(Sketcher.Constraint("Equal", 2, 4))
sketch1.addConstraint(Sketcher.Constraint("Equal", 1, 5))
sketch1.addConstraint(Sketcher.Constraint("Equal", 4, 6))
sketch1.addConstraint(Sketcher.Constraint("Equal", 6, 8))
sketch1.addConstraint(Sketcher.Constraint("Equal", 5, 9))
sketch1.addConstraint(Sketcher.Constraint("Equal", 8, 10))
sketch1.addConstraint(Sketcher.Constraint("Equal", 10, 12))
sketch1.addConstraint(Sketcher.Constraint("Equal", 9, 13))
sketch1.addConstraint(Sketcher.Constraint("Equal", 12, 14))
sketch1.addConstraint(Sketcher.Constraint("Equal", 14, 16))
sketch1.addConstraint(Sketcher.Constraint("Equal", 34, 36))
sketch1.addConstraint(Sketcher.Constraint("Radius", 3, Q("37.5 mm")))
sketch1.addConstraint(Sketcher.Constraint("DistanceX", 37, 1, 37, 2, Q("5 mm")))
sketch1.addConstraint(Sketcher.Constraint("Angle", 1, Q("162 deg")))
sketch1.addConstraint(Sketcher.Constraint("Angle", 5, Q("144 deg")))
sketch1.addConstraint(Sketcher.Constraint("Distance", 1, Q("5 mm")))
sketch1.addConstraint(Sketcher.Constraint("DistanceY", 15, 1, -1, 1, Q("3 mm")))
sketch1.addConstraint(Sketcher.Constraint("DistanceX", 16, 2, -1, 1, Q("44.930502 mm")))
sketch1.addConstraint(Sketcher.Constraint("DistanceY", 0, 2, -1, 1, Q("43.503989 mm")))
sketch1.addConstraint(Sketcher.Constraint("DistanceX", 1, 2, -1, 1, Q("16.26193 mm")))
sketch1.addConstraint(Sketcher.Constraint("DistanceX", 3, 1, -1, 1, Q("19.544249 mm")))
sketch1.addConstraint(Sketcher.Constraint("DistanceX", 5, 2, -1, 1, Q("28.432029 mm")))
pad1 = body.newObject("PartDesign::Pad", "Pad")
pad1.Profile = sketch1
pad1.Length = 10
pad1.Reversed = True

sketch2 = body.newObject("Sketcher::SketchObject", "Sketch001")
sketch2.AttachmentSupport = (doc.getObject("XZ_Plane"), [""])
sketch2.MapMode = "FlatFace"
sketch2.AttachmentOffset = App.Placement(V(0, 0, -10), App.Rotation())
sketch2.addGeometry(Part.Circle(V(0, 0, 0), V(0, 0, 1), 10), False)
sketch2.addConstraint(Sketcher.Constraint("Coincident", 0, 3, -1, 1))
sketch2.addConstraint(Sketcher.Constraint("Diameter", 0, Q("19.18 mm")))
pocket1 = body.newObject("PartDesign::Pocket", "Pocket")
pocket1.Profile = sketch2
pocket1.Length = 10
pocket1.Reversed = True

doc.recompute()
